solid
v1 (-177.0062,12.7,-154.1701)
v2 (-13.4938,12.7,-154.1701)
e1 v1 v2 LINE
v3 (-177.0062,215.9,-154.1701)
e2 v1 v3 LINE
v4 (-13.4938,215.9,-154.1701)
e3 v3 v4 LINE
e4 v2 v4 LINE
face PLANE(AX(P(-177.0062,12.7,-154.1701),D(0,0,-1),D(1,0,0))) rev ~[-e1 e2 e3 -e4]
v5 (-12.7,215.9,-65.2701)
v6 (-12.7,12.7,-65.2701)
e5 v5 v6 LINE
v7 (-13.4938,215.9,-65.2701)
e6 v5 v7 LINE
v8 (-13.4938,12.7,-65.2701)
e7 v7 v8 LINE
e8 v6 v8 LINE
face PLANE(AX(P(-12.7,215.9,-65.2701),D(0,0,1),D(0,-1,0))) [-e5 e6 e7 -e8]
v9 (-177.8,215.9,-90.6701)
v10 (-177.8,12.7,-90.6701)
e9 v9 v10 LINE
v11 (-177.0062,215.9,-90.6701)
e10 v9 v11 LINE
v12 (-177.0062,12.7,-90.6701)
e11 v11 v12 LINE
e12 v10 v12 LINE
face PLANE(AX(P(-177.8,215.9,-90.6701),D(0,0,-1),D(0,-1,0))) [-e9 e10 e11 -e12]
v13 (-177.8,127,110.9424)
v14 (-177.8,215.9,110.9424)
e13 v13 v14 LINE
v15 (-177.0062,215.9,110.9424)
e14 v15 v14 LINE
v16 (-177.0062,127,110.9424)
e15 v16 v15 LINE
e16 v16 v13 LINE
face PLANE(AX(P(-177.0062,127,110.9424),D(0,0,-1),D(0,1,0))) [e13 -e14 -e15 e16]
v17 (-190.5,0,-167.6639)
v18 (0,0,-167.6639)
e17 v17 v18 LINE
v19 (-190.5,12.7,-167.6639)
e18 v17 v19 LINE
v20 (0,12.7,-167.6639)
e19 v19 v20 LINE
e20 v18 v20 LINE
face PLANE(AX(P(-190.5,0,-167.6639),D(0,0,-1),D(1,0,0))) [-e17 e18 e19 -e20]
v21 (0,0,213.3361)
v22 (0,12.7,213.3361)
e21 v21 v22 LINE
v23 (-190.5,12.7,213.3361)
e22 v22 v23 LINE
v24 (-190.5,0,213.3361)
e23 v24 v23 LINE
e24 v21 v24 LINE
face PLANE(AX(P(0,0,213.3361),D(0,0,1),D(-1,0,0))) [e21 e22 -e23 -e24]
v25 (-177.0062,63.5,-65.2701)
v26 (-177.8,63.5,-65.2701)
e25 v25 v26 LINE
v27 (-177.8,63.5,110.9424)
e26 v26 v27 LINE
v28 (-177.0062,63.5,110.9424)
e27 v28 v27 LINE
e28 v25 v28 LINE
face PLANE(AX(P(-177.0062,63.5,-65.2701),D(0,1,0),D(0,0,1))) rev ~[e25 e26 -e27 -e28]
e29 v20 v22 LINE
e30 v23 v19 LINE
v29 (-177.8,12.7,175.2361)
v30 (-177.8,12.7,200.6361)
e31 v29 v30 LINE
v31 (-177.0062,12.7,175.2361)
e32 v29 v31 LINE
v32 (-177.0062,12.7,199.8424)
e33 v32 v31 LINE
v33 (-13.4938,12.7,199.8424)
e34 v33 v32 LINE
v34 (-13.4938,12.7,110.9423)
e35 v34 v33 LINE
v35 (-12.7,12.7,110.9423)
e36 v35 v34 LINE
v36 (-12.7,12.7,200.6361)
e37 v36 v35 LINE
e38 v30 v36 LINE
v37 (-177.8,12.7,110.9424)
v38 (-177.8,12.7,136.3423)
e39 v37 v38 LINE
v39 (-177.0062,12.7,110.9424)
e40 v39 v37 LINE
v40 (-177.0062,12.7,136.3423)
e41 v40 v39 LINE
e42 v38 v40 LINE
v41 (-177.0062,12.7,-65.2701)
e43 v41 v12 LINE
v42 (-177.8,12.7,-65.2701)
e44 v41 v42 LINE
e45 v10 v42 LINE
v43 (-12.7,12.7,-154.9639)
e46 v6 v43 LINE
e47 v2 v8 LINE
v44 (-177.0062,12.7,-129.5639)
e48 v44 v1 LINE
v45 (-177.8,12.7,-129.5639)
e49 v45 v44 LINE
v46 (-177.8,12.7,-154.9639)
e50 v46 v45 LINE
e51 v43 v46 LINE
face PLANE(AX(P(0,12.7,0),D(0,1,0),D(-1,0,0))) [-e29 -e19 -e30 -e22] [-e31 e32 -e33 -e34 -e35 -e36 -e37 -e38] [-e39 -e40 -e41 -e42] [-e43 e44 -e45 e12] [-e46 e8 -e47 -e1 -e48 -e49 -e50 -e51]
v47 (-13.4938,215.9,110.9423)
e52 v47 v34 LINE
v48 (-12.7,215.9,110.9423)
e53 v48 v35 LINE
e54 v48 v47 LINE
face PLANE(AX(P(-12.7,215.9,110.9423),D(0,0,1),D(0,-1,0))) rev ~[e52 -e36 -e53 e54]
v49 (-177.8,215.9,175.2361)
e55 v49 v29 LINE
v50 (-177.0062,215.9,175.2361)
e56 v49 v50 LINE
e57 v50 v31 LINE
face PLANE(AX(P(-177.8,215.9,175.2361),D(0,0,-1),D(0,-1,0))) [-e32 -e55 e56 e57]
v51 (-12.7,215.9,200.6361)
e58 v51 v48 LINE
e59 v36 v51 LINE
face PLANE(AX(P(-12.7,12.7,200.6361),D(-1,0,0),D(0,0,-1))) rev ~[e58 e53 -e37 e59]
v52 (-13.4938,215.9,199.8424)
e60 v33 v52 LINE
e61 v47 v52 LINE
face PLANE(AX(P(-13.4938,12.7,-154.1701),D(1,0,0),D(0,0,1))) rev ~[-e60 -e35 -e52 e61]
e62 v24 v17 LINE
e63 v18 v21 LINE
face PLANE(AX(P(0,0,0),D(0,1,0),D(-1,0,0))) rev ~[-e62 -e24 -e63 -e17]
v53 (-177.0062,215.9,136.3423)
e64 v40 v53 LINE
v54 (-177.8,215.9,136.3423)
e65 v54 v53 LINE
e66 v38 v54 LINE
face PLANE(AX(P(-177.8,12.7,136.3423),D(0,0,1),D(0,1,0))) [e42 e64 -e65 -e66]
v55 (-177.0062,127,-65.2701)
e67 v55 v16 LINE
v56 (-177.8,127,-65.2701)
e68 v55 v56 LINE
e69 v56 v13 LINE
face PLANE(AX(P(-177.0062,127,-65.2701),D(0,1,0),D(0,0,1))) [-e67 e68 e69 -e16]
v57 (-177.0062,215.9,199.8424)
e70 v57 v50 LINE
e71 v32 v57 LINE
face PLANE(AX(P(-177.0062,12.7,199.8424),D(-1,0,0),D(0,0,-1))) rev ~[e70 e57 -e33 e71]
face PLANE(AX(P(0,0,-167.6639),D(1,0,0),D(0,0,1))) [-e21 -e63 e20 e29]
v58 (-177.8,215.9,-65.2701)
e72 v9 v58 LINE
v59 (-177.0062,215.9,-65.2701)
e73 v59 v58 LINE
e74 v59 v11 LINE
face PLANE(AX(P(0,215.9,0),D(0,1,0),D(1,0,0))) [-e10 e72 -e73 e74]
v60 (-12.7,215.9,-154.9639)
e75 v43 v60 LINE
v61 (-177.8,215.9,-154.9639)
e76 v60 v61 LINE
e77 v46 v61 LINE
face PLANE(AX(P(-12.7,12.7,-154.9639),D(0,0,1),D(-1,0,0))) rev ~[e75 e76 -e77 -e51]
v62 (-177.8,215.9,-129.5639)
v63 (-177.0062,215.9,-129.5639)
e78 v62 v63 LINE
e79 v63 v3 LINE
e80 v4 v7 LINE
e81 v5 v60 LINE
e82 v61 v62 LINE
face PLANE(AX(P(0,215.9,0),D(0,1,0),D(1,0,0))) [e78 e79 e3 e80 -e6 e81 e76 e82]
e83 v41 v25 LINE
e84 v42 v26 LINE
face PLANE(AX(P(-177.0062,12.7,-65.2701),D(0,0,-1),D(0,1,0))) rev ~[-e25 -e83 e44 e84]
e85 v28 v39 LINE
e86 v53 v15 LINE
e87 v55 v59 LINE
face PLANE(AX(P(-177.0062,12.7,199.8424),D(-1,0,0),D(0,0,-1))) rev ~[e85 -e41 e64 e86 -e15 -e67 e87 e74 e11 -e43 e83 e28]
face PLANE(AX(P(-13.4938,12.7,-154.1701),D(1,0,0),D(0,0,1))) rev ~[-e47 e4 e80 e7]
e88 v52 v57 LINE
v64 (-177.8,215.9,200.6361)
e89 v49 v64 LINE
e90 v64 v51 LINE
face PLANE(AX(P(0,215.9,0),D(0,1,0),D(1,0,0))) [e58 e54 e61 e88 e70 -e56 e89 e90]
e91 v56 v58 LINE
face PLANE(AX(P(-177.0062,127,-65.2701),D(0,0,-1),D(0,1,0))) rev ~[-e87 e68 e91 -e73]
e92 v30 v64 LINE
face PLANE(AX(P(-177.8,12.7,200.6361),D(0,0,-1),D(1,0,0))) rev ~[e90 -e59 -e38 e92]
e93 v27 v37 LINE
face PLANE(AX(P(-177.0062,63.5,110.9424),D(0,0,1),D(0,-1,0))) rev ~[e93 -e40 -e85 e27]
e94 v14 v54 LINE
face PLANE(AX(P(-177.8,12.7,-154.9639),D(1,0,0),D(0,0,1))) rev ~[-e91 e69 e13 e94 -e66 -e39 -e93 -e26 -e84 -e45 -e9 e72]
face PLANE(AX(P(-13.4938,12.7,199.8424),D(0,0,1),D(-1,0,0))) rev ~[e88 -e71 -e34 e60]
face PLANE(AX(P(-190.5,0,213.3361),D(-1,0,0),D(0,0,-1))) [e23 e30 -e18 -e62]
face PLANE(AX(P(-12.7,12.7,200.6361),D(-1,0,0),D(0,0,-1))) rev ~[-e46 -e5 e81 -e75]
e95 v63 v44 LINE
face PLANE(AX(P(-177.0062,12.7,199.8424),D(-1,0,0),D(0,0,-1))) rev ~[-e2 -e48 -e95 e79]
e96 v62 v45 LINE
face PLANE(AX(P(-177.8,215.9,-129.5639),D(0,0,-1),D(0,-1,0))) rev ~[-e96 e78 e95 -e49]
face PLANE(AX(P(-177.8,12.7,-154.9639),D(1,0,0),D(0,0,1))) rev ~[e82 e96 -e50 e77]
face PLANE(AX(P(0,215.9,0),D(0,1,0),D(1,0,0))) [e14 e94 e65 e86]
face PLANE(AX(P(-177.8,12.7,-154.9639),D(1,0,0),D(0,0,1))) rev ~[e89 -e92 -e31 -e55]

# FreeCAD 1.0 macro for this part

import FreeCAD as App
import Part
import Sketcher

V = App.Vector
Q = App.Units.Quantity


def add_polygon(sketch, points):
    """Adds a closed chain of lines whose ends are joined by coincident constraints."""
    first, n = sketch.GeometryCount, len(points)
    for a, b in zip(points, points[1:] + points[:1]):
        sketch.addGeometry(Part.LineSegment(App.Vector(*a, 0), App.Vector(*b, 0)), False)
    for i in range(n):
        sketch.addConstraint(Sketcher.Constraint("Coincident", first + i, 2, first + (i + 1) % n, 1))

doc = App.newDocument("Part")
body = doc.addObject("PartDesign::Body", "Body")

sketch1 = body.newObject("Sketcher::SketchObject", "Sketch")
sketch1.AttachmentSupport = (doc.getObject("XZ_Plane"), [""])
sketch1.MapMode = "FlatFace"
add_polygon(sketch1, [(-190, 213), (0, 213), (0, -168), (-190, -168)])
sketch1.addConstraint([
    Sketcher.Constraint("Horizontal", 0),
    Sketcher.Constraint("Vertical", 1),
    Sketcher.Constraint("Horizontal", 2),
    Sketcher.Constraint("Vertical", 3),
    Sketcher.Constraint("PointOnObject", 0, 2, -2),
    Sketcher.Constraint("DistanceY", 1, 2, 1, 1, Q("15 in")),
    Sketcher.Constraint("DistanceX", 0, 1, 0, 2, Q("7.5 in")),
    Sketcher.Constraint("DistanceY", -1, 1, 0, 2, 213.336),
])
pad1 = body.newObject("PartDesign::Pad", "Pad")
pad1.Profile = sketch1
pad1.Length = Q("0.5 in")
pad1.Reversed = True

sketch2 = body.newObject("Sketcher::SketchObject", "Sketch001")
sketch2.AttachmentSupport = (doc.getObject("XZ_Plane"), [""])
sketch2.MapMode = "FlatFace"
sketch2.AttachmentOffset = App.Placement(V(0, 0, -0.5 * 25.4), App.Rotation())
add_polygon(sketch2, [(-13, -155), (-178, -155), (-178, 201), (-13, 201)])
add_polygon(sketch2, [(-13, 200), (-177, 200), (-177, -154), (-13, -154)])
sketch2.addConstraint([
    Sketcher.Constraint("Horizontal", 0),
    Sketcher.Constraint("Vertical", 1),
    Sketcher.Constraint("Horizontal", 2),
    Sketcher.Constraint("Vertical", 3),
    Sketcher.Constraint("Horizontal", 4),
    Sketcher.Constraint("Vertical", 5),
    Sketcher.Constraint("Horizontal", 6),
    Sketcher.Constraint("Vertical", 7),
    Sketcher.Constraint("DistanceX", 2, 2, -1, 1, Q("0.5 in")),
    Sketcher.Constraint("DistanceY", 1, 1, 1, 2, Q("14 in")),
    Sketcher.Constraint("DistanceX", 0, 2, 0, 1, Q("6.5 in")),
    Sketcher.Constraint("DistanceX", 1, 2, 4, 2, Q("0.031252 in")),
    Sketcher.Constraint("DistanceY", 4, 2, 1, 2, Q("0.031248 in")),
    Sketcher.Constraint("DistanceY", 0, 2, 5, 2, Q("0.031252 in")),
    Sketcher.Constraint("DistanceX", 6, 2, 3, 2, Q("0.031252 in")),
    Sketcher.Constraint("DistanceY", -1, 1, 4, 2, Q("7.8678 in")),
])
pad2 = body.newObject("PartDesign::Pad", "Pad001")
pad2.Profile = sketch2
pad2.Length = Q("8 in")
pad2.Reversed = True

sketch3 = body.newObject("Sketcher::SketchObject", "Sketch002")
sketch3.AttachmentSupport = (doc.getObject("YZ_Plane"), [""])
sketch3.MapMode = "FlatFace"
sketch3.AttachmentOffset = App.Placement(V(0, 0, -0.5 * 25.4), App.Rotation())
add_polygon(sketch3, [(13, -65), (216, -65), (216, 111), (13, 111)])
sketch3.addConstraint([
    Sketcher.Constraint("Horizontal", 0),
    Sketcher.Constraint("Vertical", 1),
    Sketcher.Constraint("Horizontal", 2),
    Sketcher.Constraint("Vertical", 3),
    Sketcher.Constraint("DistanceX", 0, 1, 0, 2, Q("8 in")),
    Sketcher.Constraint("DistanceX", -1, 1, 0, 2, Q("8.5 in")),
    Sketcher.Constraint("DistanceY", 1, 1, 1, 2, Q("6.9375 in")),
    Sketcher.Constraint("DistanceY", 0, 2, -1, 1, Q("2.5697 in")),
])
pocket1 = body.newObject("PartDesign::Pocket", "Pocket")
pocket1.Profile = sketch3
pocket1.Length = Q("2 in")

sketch4 = body.newObject("Sketcher::SketchObject", "Sketch003")
sketch4.AttachmentSupport = (doc.getObject("YZ_Plane"), [""])
sketch4.MapMode = "FlatFace"
sketch4.AttachmentOffset = App.Placement(V(0, 0, -6.968748 * 25.4), App.Rotation())
add_polygon(sketch4, [(13, 111), (13, -65), (64, -65), (64, 111)])
add_polygon(sketch4, [(127, 111), (127, -65), (216, -65), (216, 111)])
sketch4.addConstraint([
    Sketcher.Constraint("Vertical", 0),
    Sketcher.Constraint("Horizontal", 1),
    Sketcher.Constraint("Vertical", 2),
    Sketcher.Constraint("Horizontal", 3),
    Sketcher.Constraint("Vertical", 4),
    Sketcher.Constraint("Horizontal", 5),
    Sketcher.Constraint("Vertical", 6),
    Sketcher.Constraint("Horizontal", 7),
    Sketcher.Constraint("Horizontal", 1, 2, 4, 2),
    Sketcher.Constraint("Horizontal", 3, 2, 6, 2),
    Sketcher.Constraint("DistanceX", 1, 1, 1, 2, Q("2 in")),
    Sketcher.Constraint("DistanceX", 5, 1, 5, 2, Q("3.5 in")),
    Sketcher.Constraint("DistanceX", -1, 1, 4, 2, Q("5 in")),
    Sketcher.Constraint("DistanceX", 1, 2, 5, 2, Q("6 in")),
    Sketcher.Constraint("DistanceY", 0, 2, 0, 1, Q("6.9375 in")),
    Sketcher.Constraint("DistanceY", 0, 2, -1, 1, Q("2.5697 in")),
])
pocket2 = body.newObject("PartDesign::Pocket", "Pocket001")
pocket2.Profile = sketch4
pocket2.Length = Q("2 in")

sketch5 = body.newObject("Sketcher::SketchObject", "Sketch004")
sketch5.AttachmentSupport = (doc.getObject("YZ_Plane"), [""])
sketch5.MapMode = "FlatFace"
sketch5.AttachmentOffset = App.Placement(V(0, 0, -7 * 25.4), App.Rotation())
add_polygon(sketch5, [(13, -91), (216, -91), (216, -130), (13, -130)])
sketch5.addConstraint([
    Sketcher.Constraint("Horizontal", 0),
    Sketcher.Constraint("Vertical", 1),
    Sketcher.Constraint("Horizontal", 2),
    Sketcher.Constraint("Vertical", 3),
    Sketcher.Constraint("DistanceX", 0, 1, 0, 2, Q("8 in")),
    Sketcher.Constraint("DistanceX", -1, 1, 0, 2, Q("8.5 in")),
    Sketcher.Constraint("DistanceY", 1, 2, 1, 1, Q("1.531252 in")),
    Sketcher.Constraint("DistanceY", 0, 2, -1, 1, Q("3.5697 in")),
])
pocket3 = body.newObject("PartDesign::Pocket", "Pocket002")
pocket3.Profile = sketch5
pocket3.Length = Q("1 in")
pocket3.Reversed = True

sketch6 = body.newObject("Sketcher::SketchObject", "Sketch005")
sketch6.AttachmentSupport = (doc.getObject("YZ_Plane"), [""])
sketch6.MapMode = "FlatFace"
sketch6.AttachmentOffset = App.Placement(V(0, 0, -7 * 25.4), App.Rotation())
add_polygon(sketch6, [(13, 136), (13, 175), (216, 175), (216, 136)])
sketch6.addConstraint([
    Sketcher.Constraint("Vertical", 0),
    Sketcher.Constraint("Horizontal", 1),
    Sketcher.Constraint("Vertical", 2),
    Sketcher.Constraint("Horizontal", 3),
    Sketcher.Constraint("DistanceX", 1, 1, 1, 2, Q("8 in")),
    Sketcher.Constraint("DistanceX", -1, 1, 0, 2, Q("0.5 in")),
    Sketcher.Constraint("DistanceY", 0, 1, 0, 2, Q("1.531252 in")),
    Sketcher.Constraint("DistanceY", -1, 1, 2, 2, Q("5.3678 in")),
])
pocket4 = body.newObject("PartDesign::Pocket", "Pocket003")
pocket4.Profile = sketch6
pocket4.Length = Q("1 in")
pocket4.Reversed = True

doc.recompute()
